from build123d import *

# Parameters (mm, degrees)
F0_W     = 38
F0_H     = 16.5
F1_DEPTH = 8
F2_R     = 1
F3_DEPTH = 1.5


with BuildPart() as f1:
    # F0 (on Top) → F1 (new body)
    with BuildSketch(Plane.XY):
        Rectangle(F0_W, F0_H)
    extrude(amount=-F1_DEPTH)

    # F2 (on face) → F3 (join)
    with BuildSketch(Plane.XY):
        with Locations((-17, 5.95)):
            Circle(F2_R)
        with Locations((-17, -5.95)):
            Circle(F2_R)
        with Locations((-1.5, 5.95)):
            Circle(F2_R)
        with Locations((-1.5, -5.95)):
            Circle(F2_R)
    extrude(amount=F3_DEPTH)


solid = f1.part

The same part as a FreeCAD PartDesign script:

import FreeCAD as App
import Part
import Sketcher
Q = App.Units.Quantity


def add_polygon(sketch, points):
    """Adds a closed chain of lines whose ends are joined by coincident constraints."""
    first, n = sketch.GeometryCount, len(points)
    for a, b in zip(points, points[1:] + points[:1]):
        sketch.addGeometry(Part.LineSegment(App.Vector(*a, 0), App.Vector(*b, 0)), False)
    for i in range(n):
        sketch.addConstraint(Sketcher.Constraint("Coincident", first + i, 2, first + (i + 1) % n, 1))

doc = App.newDocument("Part")
params = doc.addObject("Spreadsheet::Sheet", "Params")
for row, (alias, value) in enumerate([
    ("sketch1_width", "38 mm"),
    ("sketch1_height", "16.5 mm"),
    ("pad1_length", "8 mm"),
    ("sketch2_diameter", "2 mm"),
    ("pad2_length", "1.5 mm"),
], start=1):
    params.set(f"A{row}", alias)
    params.set(f"B{row}", "=" + value)
    params.setAlias(f"B{row}", alias)

body = doc.addObject("PartDesign::Body", "Body")

sketch1 = body.newObject("Sketcher::SketchObject", "Sketch")
sketch1.AttachmentSupport = (doc.getObject("XY_Plane"), [""])
sketch1.MapMode = "FlatFace"
add_polygon(sketch1, [(-19, 8), (-19, -8), (19, -8), (19, 8)])
sketch1.addConstraint([
    Sketcher.Constraint("Vertical", 0),
    Sketcher.Constraint("Horizontal", 1),
    Sketcher.Constraint("Vertical", 2),
    Sketcher.Constraint("Horizontal", 3),
    Sketcher.Constraint("Symmetric", 0, 2, 2, 2, -1, 1),
    Sketcher.Constraint("DistanceX", 1, 1, 1, 2, Q("38 mm")),
    Sketcher.Constraint("DistanceY", 0, 2, 0, 1, Q("16.5 mm")),
])
sketch1.setExpression("Constraints[9]", "Params.sketch1_width")
sketch1.setExpression("Constraints[10]", "Params.sketch1_height")
pad1 = body.newObject("PartDesign::Pad", "Pad")
pad1.Profile = sketch1
pad1.setExpression("Length", "Params.pad1_length")
pad1.Reversed = True

sketch2 = body.newObject("Sketcher::SketchObject", "Sketch001")
sketch2.AttachmentSupport = (doc.getObject("XY_Plane"), [""])
sketch2.MapMode = "FlatFace"
sketch2.addGeometry([
    Part.Circle(App.Vector(-17, 6, 0), App.Vector(0, 0, 1), 1),
    Part.Circle(App.Vector(-17, -6, 0), App.Vector(0, 0, 1), 1),
    Part.Circle(App.Vector(-1.5, 6, 0), App.Vector(0, 0, 1), 1),
    Part.Circle(App.Vector(-1.5, -6, 0), App.Vector(0, 0, 1), 1),
], False)
sketch2.addConstraint([
    Sketcher.Constraint("Equal", 0, 1),
    Sketcher.Constraint("Equal", 1, 2),
    Sketcher.Constraint("Equal", 2, 3),
    Sketcher.Constraint("Symmetric", 0, 3, 1, 3, -1),
    Sketcher.Constraint("Symmetric", 2, 3, 3, 3, -1),
    Sketcher.Constraint("Horizontal", 0, 3, 2, 3),
    Sketcher.Constraint("Diameter", 0, Q("2 mm")),
    Sketcher.Constraint("DistanceX", 0, 3, -1, 1, Q("17 mm")),
    Sketcher.Constraint("DistanceX", 2, 3, -1, 1, Q("1.5 mm")),
    Sketcher.Constraint("DistanceY", 1, 3, 0, 3, Q("11.9 mm")),
])
sketch2.setExpression("Constraints[6]", "Params.sketch2_diameter")
pad2 = body.newObject("PartDesign::Pad", "Pad001")
pad2.Profile = sketch2
pad2.setExpression("Length", "Params.pad2_length")

doc.recompute()
